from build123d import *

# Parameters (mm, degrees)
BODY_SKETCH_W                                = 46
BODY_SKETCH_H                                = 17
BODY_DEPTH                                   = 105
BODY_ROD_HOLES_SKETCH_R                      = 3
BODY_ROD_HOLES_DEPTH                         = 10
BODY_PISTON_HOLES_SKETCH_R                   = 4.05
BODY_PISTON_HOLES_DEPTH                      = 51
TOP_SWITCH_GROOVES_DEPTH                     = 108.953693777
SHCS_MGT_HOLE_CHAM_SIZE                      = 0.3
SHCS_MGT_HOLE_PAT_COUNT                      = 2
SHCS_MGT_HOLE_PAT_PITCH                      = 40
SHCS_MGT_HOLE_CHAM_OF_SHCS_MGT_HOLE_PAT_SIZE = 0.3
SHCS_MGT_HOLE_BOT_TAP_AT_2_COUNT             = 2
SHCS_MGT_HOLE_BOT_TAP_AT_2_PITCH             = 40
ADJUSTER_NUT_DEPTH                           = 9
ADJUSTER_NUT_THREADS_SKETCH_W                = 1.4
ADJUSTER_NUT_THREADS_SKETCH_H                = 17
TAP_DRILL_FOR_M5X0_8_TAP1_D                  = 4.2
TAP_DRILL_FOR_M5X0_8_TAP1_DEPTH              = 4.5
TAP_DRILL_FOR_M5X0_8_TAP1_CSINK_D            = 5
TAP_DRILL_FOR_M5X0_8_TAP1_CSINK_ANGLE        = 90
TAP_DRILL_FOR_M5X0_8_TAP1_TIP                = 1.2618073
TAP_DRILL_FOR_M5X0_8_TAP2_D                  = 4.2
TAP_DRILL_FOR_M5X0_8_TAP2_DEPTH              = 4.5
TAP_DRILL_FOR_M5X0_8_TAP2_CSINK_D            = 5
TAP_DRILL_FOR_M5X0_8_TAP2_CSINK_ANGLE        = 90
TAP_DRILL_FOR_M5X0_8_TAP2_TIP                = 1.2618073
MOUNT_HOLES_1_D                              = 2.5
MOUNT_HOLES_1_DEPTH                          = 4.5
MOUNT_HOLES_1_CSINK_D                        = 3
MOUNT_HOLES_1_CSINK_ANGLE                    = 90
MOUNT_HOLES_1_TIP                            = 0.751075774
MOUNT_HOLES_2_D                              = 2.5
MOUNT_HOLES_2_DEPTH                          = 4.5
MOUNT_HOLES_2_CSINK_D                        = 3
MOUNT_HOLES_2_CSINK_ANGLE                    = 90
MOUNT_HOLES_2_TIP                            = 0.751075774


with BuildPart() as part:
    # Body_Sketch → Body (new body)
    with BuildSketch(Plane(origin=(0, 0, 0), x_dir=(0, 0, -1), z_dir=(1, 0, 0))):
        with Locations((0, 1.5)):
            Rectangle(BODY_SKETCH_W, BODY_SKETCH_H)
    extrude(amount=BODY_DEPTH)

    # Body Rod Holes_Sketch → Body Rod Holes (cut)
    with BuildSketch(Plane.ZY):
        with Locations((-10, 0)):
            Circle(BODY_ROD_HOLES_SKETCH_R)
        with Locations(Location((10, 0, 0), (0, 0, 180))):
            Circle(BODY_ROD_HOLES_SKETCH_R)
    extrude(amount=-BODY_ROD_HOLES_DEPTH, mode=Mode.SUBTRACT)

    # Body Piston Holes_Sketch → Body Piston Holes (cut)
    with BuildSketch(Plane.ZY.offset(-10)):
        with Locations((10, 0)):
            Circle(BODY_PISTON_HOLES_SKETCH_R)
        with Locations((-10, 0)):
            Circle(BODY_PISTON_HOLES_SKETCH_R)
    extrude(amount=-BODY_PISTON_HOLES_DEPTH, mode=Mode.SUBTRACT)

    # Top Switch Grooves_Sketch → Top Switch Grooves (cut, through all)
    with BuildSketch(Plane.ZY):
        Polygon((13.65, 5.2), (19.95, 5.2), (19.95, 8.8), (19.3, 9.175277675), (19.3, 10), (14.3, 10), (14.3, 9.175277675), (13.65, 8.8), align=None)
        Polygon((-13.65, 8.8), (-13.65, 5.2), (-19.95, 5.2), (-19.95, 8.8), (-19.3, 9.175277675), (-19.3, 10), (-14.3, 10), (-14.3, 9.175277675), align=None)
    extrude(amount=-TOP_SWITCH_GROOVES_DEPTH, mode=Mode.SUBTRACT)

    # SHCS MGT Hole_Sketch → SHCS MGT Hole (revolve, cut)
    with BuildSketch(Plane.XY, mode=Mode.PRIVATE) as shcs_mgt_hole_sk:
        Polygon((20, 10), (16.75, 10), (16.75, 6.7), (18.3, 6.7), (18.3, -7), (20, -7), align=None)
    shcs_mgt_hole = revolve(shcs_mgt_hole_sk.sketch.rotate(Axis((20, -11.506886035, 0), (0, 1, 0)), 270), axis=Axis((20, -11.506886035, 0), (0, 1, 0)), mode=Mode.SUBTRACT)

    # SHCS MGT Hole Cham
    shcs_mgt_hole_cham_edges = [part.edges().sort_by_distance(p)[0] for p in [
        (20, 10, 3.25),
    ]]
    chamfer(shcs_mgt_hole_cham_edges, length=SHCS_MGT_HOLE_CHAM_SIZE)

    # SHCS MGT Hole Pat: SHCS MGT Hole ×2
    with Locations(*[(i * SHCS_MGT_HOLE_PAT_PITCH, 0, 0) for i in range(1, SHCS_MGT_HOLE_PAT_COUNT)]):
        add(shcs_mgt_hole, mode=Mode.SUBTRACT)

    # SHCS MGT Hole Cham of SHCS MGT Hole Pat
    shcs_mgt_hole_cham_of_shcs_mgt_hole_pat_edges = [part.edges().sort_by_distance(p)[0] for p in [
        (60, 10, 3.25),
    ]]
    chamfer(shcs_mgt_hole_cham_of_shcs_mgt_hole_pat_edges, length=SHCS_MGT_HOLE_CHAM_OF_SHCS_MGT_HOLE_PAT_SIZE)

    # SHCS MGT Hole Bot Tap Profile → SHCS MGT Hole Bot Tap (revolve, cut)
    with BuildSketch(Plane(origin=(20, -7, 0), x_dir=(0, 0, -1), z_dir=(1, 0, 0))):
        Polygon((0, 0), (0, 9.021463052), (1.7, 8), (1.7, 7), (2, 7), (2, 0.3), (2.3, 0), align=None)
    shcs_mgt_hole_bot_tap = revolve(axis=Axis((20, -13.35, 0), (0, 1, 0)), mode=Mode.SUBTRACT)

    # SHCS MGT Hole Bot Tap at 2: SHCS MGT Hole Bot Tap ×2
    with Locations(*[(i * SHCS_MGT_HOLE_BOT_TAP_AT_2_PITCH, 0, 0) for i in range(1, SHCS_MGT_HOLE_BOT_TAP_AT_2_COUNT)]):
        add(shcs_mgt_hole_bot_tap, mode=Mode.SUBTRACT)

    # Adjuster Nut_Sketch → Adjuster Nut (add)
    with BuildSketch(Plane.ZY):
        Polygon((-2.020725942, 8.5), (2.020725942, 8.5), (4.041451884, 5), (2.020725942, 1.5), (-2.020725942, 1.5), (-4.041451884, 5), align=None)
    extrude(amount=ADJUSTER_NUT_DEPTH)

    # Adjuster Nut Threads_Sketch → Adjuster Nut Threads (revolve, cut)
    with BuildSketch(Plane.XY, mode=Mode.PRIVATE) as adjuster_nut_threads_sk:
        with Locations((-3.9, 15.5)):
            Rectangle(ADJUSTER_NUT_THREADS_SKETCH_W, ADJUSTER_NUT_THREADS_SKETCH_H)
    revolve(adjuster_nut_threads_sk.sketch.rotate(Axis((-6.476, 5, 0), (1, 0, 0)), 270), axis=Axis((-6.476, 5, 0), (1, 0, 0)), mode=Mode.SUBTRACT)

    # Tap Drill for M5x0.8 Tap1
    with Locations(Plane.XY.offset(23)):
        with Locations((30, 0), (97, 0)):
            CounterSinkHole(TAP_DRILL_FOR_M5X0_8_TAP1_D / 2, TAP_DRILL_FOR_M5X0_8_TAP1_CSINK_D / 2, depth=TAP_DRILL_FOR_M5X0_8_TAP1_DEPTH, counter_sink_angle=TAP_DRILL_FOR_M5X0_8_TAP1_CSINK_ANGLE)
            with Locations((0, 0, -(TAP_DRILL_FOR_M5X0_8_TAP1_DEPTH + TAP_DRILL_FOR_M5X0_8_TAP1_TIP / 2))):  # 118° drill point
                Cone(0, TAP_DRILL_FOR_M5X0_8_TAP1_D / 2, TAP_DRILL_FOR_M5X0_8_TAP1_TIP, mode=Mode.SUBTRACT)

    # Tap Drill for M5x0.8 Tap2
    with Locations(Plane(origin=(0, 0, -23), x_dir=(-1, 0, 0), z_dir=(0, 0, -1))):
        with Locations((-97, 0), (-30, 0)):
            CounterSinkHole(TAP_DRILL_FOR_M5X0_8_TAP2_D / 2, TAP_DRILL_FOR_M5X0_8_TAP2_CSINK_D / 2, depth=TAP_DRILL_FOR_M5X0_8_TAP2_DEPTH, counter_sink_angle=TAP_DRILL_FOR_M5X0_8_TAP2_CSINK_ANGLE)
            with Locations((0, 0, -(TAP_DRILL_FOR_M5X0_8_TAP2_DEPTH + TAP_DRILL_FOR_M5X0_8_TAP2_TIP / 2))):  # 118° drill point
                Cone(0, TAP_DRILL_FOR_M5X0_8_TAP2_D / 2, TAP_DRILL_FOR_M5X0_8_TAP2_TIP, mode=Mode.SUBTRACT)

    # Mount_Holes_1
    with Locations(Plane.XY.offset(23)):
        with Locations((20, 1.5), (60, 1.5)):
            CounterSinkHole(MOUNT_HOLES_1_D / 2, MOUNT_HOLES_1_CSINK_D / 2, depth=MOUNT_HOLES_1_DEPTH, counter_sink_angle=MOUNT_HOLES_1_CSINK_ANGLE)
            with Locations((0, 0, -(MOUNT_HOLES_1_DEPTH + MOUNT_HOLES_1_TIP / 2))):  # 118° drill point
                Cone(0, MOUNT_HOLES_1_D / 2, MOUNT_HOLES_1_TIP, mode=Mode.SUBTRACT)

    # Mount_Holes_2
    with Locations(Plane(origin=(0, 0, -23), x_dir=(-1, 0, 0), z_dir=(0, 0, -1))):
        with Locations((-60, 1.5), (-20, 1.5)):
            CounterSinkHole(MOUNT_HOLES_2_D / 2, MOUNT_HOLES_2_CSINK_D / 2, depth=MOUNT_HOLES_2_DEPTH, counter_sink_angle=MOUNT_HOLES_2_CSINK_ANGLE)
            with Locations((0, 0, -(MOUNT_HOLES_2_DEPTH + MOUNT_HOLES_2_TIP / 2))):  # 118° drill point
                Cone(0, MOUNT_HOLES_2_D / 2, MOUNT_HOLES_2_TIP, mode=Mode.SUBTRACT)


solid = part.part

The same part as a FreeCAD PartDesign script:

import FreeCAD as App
import Part
import Sketcher

V = App.Vector
Q = App.Units.Quantity


def edges_at(feature, points):
    """Names of the edges that pass closest to the given points."""
    edges = feature.Shape.Edges
    near = lambda p: min(range(len(edges)), key=lambda i: edges[i].distToShape(Part.Vertex(*p))[0])
    return sorted({f"Edge{near(p) + 1}" for p in points})

doc = App.newDocument("Part")
body = doc.addObject("PartDesign::Body", "Body")

# Sketch on YZ plane
sketch1 = body.newObject("Sketcher::SketchObject", "Sketch")
sketch1.AttachmentSupport = (doc.getObject("YZ_Plane"), [""])
sketch1.MapMode = "FlatFace"
sketch1.addGeometry([
    Part.LineSegment(V(10, 23, 0), V(-7, 23, 0)),
    Part.LineSegment(V(-7, 23, 0), V(-7, -23, 0)),
    Part.LineSegment(V(-7, -23, 0), V(10, -23, 0)),
    Part.LineSegment(V(10, -23, 0), V(10, 23, 0)),
], False)
sketch1.addConstraint([
    Sketcher.Constraint("Coincident", 0, 2, 1, 1),
    Sketcher.Constraint("Coincident", 1, 2, 2, 1),
    Sketcher.Constraint("Coincident", 2, 2, 3, 1),
    Sketcher.Constraint("Coincident", 3, 2, 0, 1),
    Sketcher.Constraint("Horizontal", 0),
    Sketcher.Constraint("Vertical", 1),
    Sketcher.Constraint("Horizontal", 2),
    Sketcher.Constraint("Vertical", 3),
    Sketcher.Constraint("DistanceX", 0, 2, 0, 1, 17.0),
    Sketcher.Constraint("DistanceY", 1, 2, 1, 1, 46.0),
    Sketcher.Constraint("DistanceX", 0, 2, -1, 1, 7.0),
    Sketcher.Constraint("DistanceY", -1, 1, 0, 2, 23.0),
])
pad1 = body.newObject("PartDesign::Pad", "Pad")
pad1.Profile = sketch1
pad1.Length = 105

# Sketch on YZ plane
sketch2 = body.newObject("Sketcher::SketchObject", "Sketch001")
sketch2.AttachmentSupport = (doc.getObject("YZ_Plane"), [""])
sketch2.MapMode = "FlatFace"
sketch2.addGeometry([
    Part.Circle(V(0, -10, 0), V(0, 0, 1), 3),
    Part.Circle(V(0, 10, 0), V(0, 0, 1), 3),
], False)
sketch2.addConstraint([
    Sketcher.Constraint("Equal", 0, 1),
    Sketcher.Constraint("Symmetric", 0, 3, 1, 3, -1, 1),
    Sketcher.Constraint("PointOnObject", 0, 3, -2),
    Sketcher.Constraint("Diameter", 0, 6.0),
    Sketcher.Constraint("DistanceY", 0, 3, -1, 1, 10.0),
])
pocket1 = body.newObject("PartDesign::Pocket", "Pocket")
pocket1.Profile = sketch2
pocket1.Length = 10
pocket1.Reversed = True

# Sketch on YZ plane
sketch3 = body.newObject("Sketcher::SketchObject", "Sketch002")
sketch3.AttachmentSupport = (doc.getObject("YZ_Plane"), [""])
sketch3.MapMode = "FlatFace"
sketch3.AttachmentOffset = App.Placement(V(0, 0, 10), App.Rotation())
sketch3.addGeometry([
    Part.Circle(V(0, 10, 0), V(0, 0, 1), 4),
    Part.Circle(V(0, -10, 0), V(0, 0, 1), 4),
], False)
sketch3.addConstraint([
    Sketcher.Constraint("Equal", 0, 1),
    Sketcher.Constraint("Symmetric", 0, 3, 1, 3, -1, 1),
    Sketcher.Constraint("PointOnObject", 0, 3, -2),
    Sketcher.Constraint("Diameter", 0, 8.1),
    Sketcher.Constraint("DistanceY", -1, 1, 0, 3, 10.0),
])
pocket2 = body.newObject("PartDesign::Pocket", "Pocket001")
pocket2.Profile = sketch3
pocket2.Length = 51
pocket2.Reversed = True

# Sketch on YZ plane
sketch4 = body.newObject("Sketcher::SketchObject", "Sketch003")
sketch4.AttachmentSupport = (doc.getObject("YZ_Plane"), [""])
sketch4.MapMode = "FlatFace"
sketch4.addGeometry([
    Part.LineSegment(V(5.2, 13.7, 0), V(5.2, 19.9, 0)),  # 0
    Part.LineSegment(V(5.2, 19.9, 0), V(8.8, 19.9, 0)),  # 1
    Part.LineSegment(V(8.8, 19.9, 0), V(9.2, 19.3, 0)),  # 2
    Part.LineSegment(V(9.2, 19.3, 0), V(10, 19.3, 0)),  # 3
    Part.LineSegment(V(10, 19.3, 0), V(10, 14.3, 0)),  # 4
    Part.LineSegment(V(10, 14.3, 0), V(9.2, 14.3, 0)),  # 5
    Part.LineSegment(V(9.2, 14.3, 0), V(8.8, 13.7, 0)),  # 6
    Part.LineSegment(V(8.8, 13.7, 0), V(5.2, 13.7, 0)),  # 7
    Part.LineSegment(V(5.2, -13.7, 0), V(8.8, -13.7, 0)),  # 8
    Part.LineSegment(V(8.8, -13.7, 0), V(9.2, -14.3, 0)),  # 9
    Part.LineSegment(V(9.2, -14.3, 0), V(10, -14.3, 0)),  # 10
    Part.LineSegment(V(10, -14.3, 0), V(10, -19.3, 0)),  # 11
    Part.LineSegment(V(10, -19.3, 0), V(9.2, -19.3, 0)),  # 12
    Part.LineSegment(V(9.2, -19.3, 0), V(8.8, -19.9, 0)),  # 13
    Part.LineSegment(V(8.8, -19.9, 0), V(5.2, -19.9, 0)),  # 14
    Part.LineSegment(V(5.2, -19.9, 0), V(5.2, -13.7, 0)),  # 15
], False)
sketch4.addConstraint([
    Sketcher.Constraint("Coincident", 0, 2, 1, 1),
    Sketcher.Constraint("Coincident", 1, 2, 2, 1),
    Sketcher.Constraint("Coincident", 2, 2, 3, 1),
    Sketcher.Constraint("Coincident", 3, 2, 4, 1),
    Sketcher.Constraint("Coincident", 4, 2, 5, 1),
    Sketcher.Constraint("Coincident", 5, 2, 6, 1),
    Sketcher.Constraint("Coincident", 6, 2, 7, 1),
    Sketcher.Constraint("Coincident", 7, 2, 0, 1),
    Sketcher.Constraint("Coincident", 8, 2, 9, 1),
    Sketcher.Constraint("Coincident", 9, 2, 10, 1),
    Sketcher.Constraint("Coincident", 10, 2, 11, 1),
    Sketcher.Constraint("Coincident", 11, 2, 12, 1),
    Sketcher.Constraint("Coincident", 12, 2, 13, 1),
    Sketcher.Constraint("Coincident", 13, 2, 14, 1),
    Sketcher.Constraint("Coincident", 14, 2, 15, 1),
    Sketcher.Constraint("Coincident", 15, 2, 8, 1),
    Sketcher.Constraint("Vertical", 0),
    Sketcher.Constraint("Horizontal", 1),
    Sketcher.Constraint("Horizontal", 3),
    Sketcher.Constraint("Vertical", 4),
    Sketcher.Constraint("Horizontal", 5),
    Sketcher.Constraint("Horizontal", 7),
    Sketcher.Constraint("Horizontal", 8),
    Sketcher.Constraint("Horizontal", 10),
    Sketcher.Constraint("Vertical", 11),
    Sketcher.Constraint("Horizontal", 12),
    Sketcher.Constraint("Horizontal", 14),
    Sketcher.Constraint("Vertical", 15),
    Sketcher.Constraint("Symmetric", 6, 2, 8, 2, -1),
    Sketcher.Constraint("Symmetric", 5, 2, 9, 2, -1),
    Sketcher.Constraint("Symmetric", 3, 2, 11, 2, -1),
    Sketcher.Constraint("Symmetric", 1, 2, 13, 2, -1),
    Sketcher.Constraint("Parallel", 2, 9),
    Sketcher.Constraint("Parallel", 6, 13),
    Sketcher.Constraint("Vertical", 2, 2, 5, 2),
    Sketcher.Constraint("Vertical", 1, 2, 6, 2),
    Sketcher.Constraint("Vertical", 7, 2, 14, 2),
    Sketcher.Constraint("DistanceY", 4, 2, 4, 1, 5.0),
    Sketcher.Constraint("Angle", 2, Q("-60 deg")),
    Sketcher.Constraint("DistanceX", 1, 1, 1, 2, 3.6),
    Sketcher.Constraint("DistanceY", 0, 1, 0, 2, 6.3),
    Sketcher.Constraint("DistanceX", -1, 1, 3, 2, 10.0),
    Sketcher.Constraint("DistanceX", -1, 1, 0, 2, 5.2),
    Sketcher.Constraint("DistanceY", -1, 1, 2, 2, 19.3),
])
pocket3 = body.newObject("PartDesign::Pocket", "Pocket002")
pocket3.Profile = sketch4
pocket3.Type = "ThroughAll"
pocket3.Reversed = True

# Sketch on XY plane
sketch5 = body.newObject("Sketcher::SketchObject", "Sketch004")
sketch5.AttachmentSupport = (doc.getObject("XY_Plane"), [""])
sketch5.MapMode = "FlatFace"
sketch5.addGeometry([
    Part.LineSegment(V(20, 10, 0), V(16.8, 10, 0)),  # 0
    Part.LineSegment(V(16.8, 10, 0), V(16.8, 6.7, 0)),  # 1
    Part.LineSegment(V(16.8, 6.7, 0), V(18.3, 6.7, 0)),  # 2
    Part.LineSegment(V(18.3, 6.7, 0), V(18.3, -7, 0)),  # 3
    Part.LineSegment(V(18.3, -7, 0), V(20, -7, 0)),  # 4
    Part.LineSegment(V(20, -7, 0), V(20, 10, 0)),  # 5
], False)
sketch5.addGeometry(Part.LineSegment(V(20, -7, 0), V(20, 10, 0)), True)  # axis
sketch5.addConstraint([
    Sketcher.Constraint("Coincident", 0, 2, 1, 1),
    Sketcher.Constraint("Coincident", 1, 2, 2, 1),
    Sketcher.Constraint("Coincident", 2, 2, 3, 1),
    Sketcher.Constraint("Coincident", 3, 2, 4, 1),
    Sketcher.Constraint("Coincident", 4, 2, 5, 1),
    Sketcher.Constraint("Coincident", 5, 2, 0, 1),
    Sketcher.Constraint("Horizontal", 0),
    Sketcher.Constraint("Vertical", 1),
    Sketcher.Constraint("Horizontal", 2),
    Sketcher.Constraint("Vertical", 3),
    Sketcher.Constraint("Horizontal", 4),
    Sketcher.Constraint("Vertical", 5),
    Sketcher.Constraint("Vertical", 6),
    Sketcher.Constraint("Coincident", 6, 1, 4, 2),
    Sketcher.Constraint("Horizontal", 0, 2, 6, 2),
    Sketcher.Constraint("DistanceY", 5, 1, 5, 2, 17.0),
    Sketcher.Constraint("DistanceX", 4, 1, 4, 2, 1.7),
    Sketcher.Constraint("DistanceY", 1, 2, 1, 1, 3.3),
    Sketcher.Constraint("DistanceY", -1, 1, 0, 2, 10.0),
    Sketcher.Constraint("DistanceX", -1, 1, 4, 2, 20.0),
    Sketcher.Constraint("DistanceX", 0, 2, 0, 1, 3.25),
])
groove = body.newObject("PartDesign::Groove", "Groove")
groove.Profile = sketch5
groove.ReferenceAxis = (sketch5, ["Axis0"])
groove.Angle = 360
doc.recompute()

chamfer = body.newObject("PartDesign::Chamfer", "Chamfer")
chamfer.Base = (groove, edges_at(groove, [(20, 10, 3.25)]))
chamfer.Size = 0.3
doc.recompute()

linearpattern = body.newObject("PartDesign::LinearPattern", "LinearPattern")
linearpattern.Originals = [groove]
linearpattern.Direction = (doc.getObject("X_Axis"), [""])
linearpattern.Mode = "offset"
linearpattern.Offset = 40
linearpattern.Occurrences = 2
body.Tip = linearpattern
doc.recompute()

chamfer2 = body.newObject("PartDesign::Chamfer", "Chamfer001")
chamfer2.Base = (linearpattern, edges_at(linearpattern, [(60, 10, 3.25)]))
chamfer2.Size = 0.3

# Sketch on YZ plane
sketch6 = body.newObject("Sketcher::SketchObject", "Sketch005")
sketch6.AttachmentSupport = (doc.getObject("YZ_Plane"), [""])
sketch6.MapMode = "FlatFace"
sketch6.AttachmentOffset = App.Placement(V(0, 0, 20), App.Rotation())
sketch6.addGeometry([
    Part.LineSegment(V(2.02, 0, 0), V(-7, 0, 0)),  # 0
    Part.LineSegment(V(-7, 0, 0), V(-7, -2.3, 0)),  # 1
    Part.LineSegment(V(-7, -2.3, 0), V(-6.7, -2, 0)),  # 2
    Part.LineSegment(V(-6.7, -2, 0), V(0, -2, 0)),  # 3
    Part.LineSegment(V(0, -2, 0), V(0, -1.7, 0)),  # 4
    Part.LineSegment(V(0, -1.7, 0), V(1, -1.7, 0)),  # 5
    Part.LineSegment(V(1, -1.7, 0), V(2.02, 0, 0)),  # 6
], False)
sketch6.addConstraint([
    Sketcher.Constraint("Coincident", 0, 2, 1, 1),
    Sketcher.Constraint("Coincident", 1, 2, 2, 1),
    Sketcher.Constraint("Coincident", 2, 2, 3, 1),
    Sketcher.Constraint("Coincident", 3, 2, 4, 1),
    Sketcher.Constraint("Coincident", 4, 2, 5, 1),
    Sketcher.Constraint("Coincident", 5, 2, 6, 1),
    Sketcher.Constraint("Coincident", 6, 2, 0, 1),
    Sketcher.Constraint("Horizontal", 0),
    Sketcher.Constraint("Vertical", 1),
    Sketcher.Constraint("Horizontal", 3),
    Sketcher.Constraint("Vertical", 4),
    Sketcher.Constraint("Horizontal", 5),
    Sketcher.Constraint("PointOnObject", 0, 2, -1),
    Sketcher.Constraint("PointOnObject", 3, 2, -2),
    Sketcher.Constraint("DistanceX", 5, 1, 5, 2, 1.0),
    Sketcher.Constraint("Angle", 2, Q("45 deg")),
    Sketcher.Constraint("Angle", 6, Q("59 deg")),
    Sketcher.Constraint("DistanceX", 3, 1, 3, 2, 6.7),
    Sketcher.Constraint("DistanceY", 1, 2, 1, 1, 2.3),
    Sketcher.Constraint("DistanceY", 4, 1, 4, 2, 0.3),
    Sketcher.Constraint("DistanceX", 0, 2, -1, 1, 7.0),
])
groove2 = body.newObject("PartDesign::Groove", "Groove001")
groove2.Profile = sketch6
groove2.ReferenceAxis = (sketch6, ["H_Axis"])
groove2.Angle = 360
doc.recompute()

linearpattern2 = body.newObject("PartDesign::LinearPattern", "LinearPattern001")
linearpattern2.Originals = [groove2]
linearpattern2.Direction = (doc.getObject("X_Axis"), [""])
linearpattern2.Mode = "offset"
linearpattern2.Offset = 40
linearpattern2.Occurrences = 2
body.Tip = linearpattern2

# Sketch on YZ plane
sketch7 = body.newObject("Sketcher::SketchObject", "Sketch006")
sketch7.AttachmentSupport = (doc.getObject("YZ_Plane"), [""])
sketch7.MapMode = "FlatFace"
sketch7.addGeometry([
    Part.LineSegment(V(8.5, 2, 0), V(8.5, -2, 0)),  # 0
    Part.LineSegment(V(8.5, -2, 0), V(5, -4, 0)),  # 1
    Part.LineSegment(V(5, -4, 0), V(1.5, -2, 0)),  # 2
    Part.LineSegment(V(1.5, -2, 0), V(1.5, 2, 0)),  # 3
    Part.LineSegment(V(1.5, 2, 0), V(5, 4, 0)),  # 4
    Part.LineSegment(V(5, 4, 0), V(8.5, 2, 0)),  # 5
], False)
sketch7.addConstraint([
    Sketcher.Constraint("Coincident", 0, 2, 1, 1),
    Sketcher.Constraint("Coincident", 1, 2, 2, 1),
    Sketcher.Constraint("Coincident", 2, 2, 3, 1),
    Sketcher.Constraint("Coincident", 3, 2, 4, 1),
    Sketcher.Constraint("Coincident", 4, 2, 5, 1),
    Sketcher.Constraint("Coincident", 5, 2, 0, 1),
    Sketcher.Constraint("Vertical", 0),
    Sketcher.Constraint("Vertical", 3),
    Sketcher.Constraint("Symmetric", 1, 2, 4, 2, -1),
    Sketcher.Constraint("Parallel", 1, 4),
    Sketcher.Constraint("Parallel", 2, 5),
    Sketcher.Constraint("Horizontal", 0, 2, 2, 2),
    Sketcher.Constraint("Horizontal", 3, 2, 5, 2),
    Sketcher.Constraint("Angle", 1, Q("-150 deg")),
    Sketcher.Constraint("DistanceX", -1, 1, 1, 2, 5.0),
    Sketcher.Constraint("DistanceX", 2, 2, 0, 2, 7.0),
    Sketcher.Constraint("DistanceY", 0, 2, 0, 1, 4.041452),
])
pad2 = body.newObject("PartDesign::Pad", "Pad001")
pad2.Profile = sketch7
pad2.Length = 9
pad2.Reversed = True

# Sketch on XY plane
sketch8 = body.newObject("Sketcher::SketchObject", "Sketch007")
sketch8.AttachmentSupport = (doc.getObject("XY_Plane"), [""])
sketch8.MapMode = "FlatFace"
sketch8.addGeometry([
    Part.LineSegment(V(-4.6, 24, 0), V(-4.6, 7, 0)),
    Part.LineSegment(V(-4.6, 7, 0), V(-3.2, 7, 0)),
    Part.LineSegment(V(-3.2, 7, 0), V(-3.2, 24, 0)),
    Part.LineSegment(V(-3.2, 24, 0), V(-4.6, 24, 0)),
], False)
sketch8.addGeometry(Part.LineSegment(V(-4.6, 5, 0), V(-3.2, 5, 0)), True)  # axis
sketch8.addConstraint([
    Sketcher.Constraint("Coincident", 0, 2, 1, 1),
    Sketcher.Constraint("Coincident", 1, 2, 2, 1),
    Sketcher.Constraint("Coincident", 2, 2, 3, 1),
    Sketcher.Constraint("Coincident", 3, 2, 0, 1),
    Sketcher.Constraint("Vertical", 0),
    Sketcher.Constraint("Horizontal", 1),
    Sketcher.Constraint("Vertical", 2),
    Sketcher.Constraint("Horizontal", 3),
    Sketcher.Constraint("Horizontal", 4),
    Sketcher.Constraint("Vertical", 3, 2, 4, 1),
    Sketcher.Constraint("Vertical", 2, 2, 4, 2),
    Sketcher.Constraint("DistanceY", 0, 2, 0, 1, 17.0),
    Sketcher.Constraint("DistanceX", 1, 1, 1, 2, 1.4),
    Sketcher.Constraint("DistanceY", -1, 1, 0, 2, 7.0),
    Sketcher.Constraint("DistanceY", -1, 1, 4, 1, 5.0),
    Sketcher.Constraint("DistanceX", 0, 2, -1, 1, 4.6),
])
groove3 = body.newObject("PartDesign::Groove", "Groove002")
groove3.Profile = sketch8
groove3.ReferenceAxis = (sketch8, ["Axis0"])
groove3.Angle = 360

# Sketch on XY plane
sketch9 = body.newObject("Sketcher::SketchObject", "Sketch008")
sketch9.AttachmentSupport = (doc.getObject("XY_Plane"), [""])
sketch9.MapMode = "FlatFace"
sketch9.AttachmentOffset = App.Placement(V(0, 0, 23), App.Rotation())
sketch9.addGeometry([
    Part.Circle(V(30, 0, 0), V(0, 0, 1), 2.1),
    Part.Circle(V(97, 0, 0), V(0, 0, 1), 2.1),
], False)
sketch9.addConstraint([
    Sketcher.Constraint("Equal", 0, 1),
    Sketcher.Constraint("PointOnObject", 0, 3, -1),
    Sketcher.Constraint("PointOnObject", 1, 3, -1),
    Sketcher.Constraint("Diameter", 0, 4.2),
    Sketcher.Constraint("DistanceX", -1, 1, 0, 3, 30.0),
    Sketcher.Constraint("DistanceX", -1, 1, 1, 3, 97.0),
])
doc.recompute()
hole = body.newObject("PartDesign::Hole", "Hole")
hole.Profile = sketch9
hole.ThreadType = "None"
hole.Diameter = 4.2
hole.DepthType = "Dimension"
hole.Depth = 4.5
hole.DrillPoint = "Angled"
hole.DrillPointAngle = 118
hole.HoleCutType = "Countersink"
hole.HoleCutDiameter = 5
hole.HoleCutCountersinkAngle = 90

# Sketch on XY plane
sketch10 = body.newObject("Sketcher::SketchObject", "Sketch009")
sketch10.AttachmentSupport = (doc.getObject("XY_Plane"), [""])
sketch10.MapMode = "FlatFace"
sketch10.AttachmentOffset = App.Placement(V(0, 0, -23), App.Rotation())
sketch10.addGeometry([
    Part.Circle(V(97, 0, 0), V(0, 0, 1), 2.1),
    Part.Circle(V(30, 0, 0), V(0, 0, 1), 2.1),
], False)
sketch10.addConstraint([
    Sketcher.Constraint("Equal", 0, 1),
    Sketcher.Constraint("PointOnObject", 0, 3, -1),
    Sketcher.Constraint("PointOnObject", 1, 3, -1),
    Sketcher.Constraint("Diameter", 0, 4.2),
    Sketcher.Constraint("DistanceX", -1, 1, 0, 3, 97.0),
    Sketcher.Constraint("DistanceX", -1, 1, 1, 3, 30.0),
])
doc.recompute()
hole2 = body.newObject("PartDesign::Hole", "Hole001")
hole2.Profile = sketch10
hole2.ThreadType = "None"
hole2.Diameter = 4.2
hole2.DepthType = "Dimension"
hole2.Depth = 4.5
hole2.DrillPoint = "Angled"
hole2.DrillPointAngle = 118
hole2.HoleCutType = "Countersink"
hole2.HoleCutDiameter = 5
hole2.HoleCutCountersinkAngle = 90
hole2.Reversed = True

# Sketch on XY plane
sketch11 = body.newObject("Sketcher::SketchObject", "Sketch010")
sketch11.AttachmentSupport = (doc.getObject("XY_Plane"), [""])
sketch11.MapMode = "FlatFace"
sketch11.AttachmentOffset = App.Placement(V(0, 0, 23), App.Rotation())
sketch11.addGeometry([
    Part.Circle(V(20, 1.5, 0), V(0, 0, 1), 1.2),
    Part.Circle(V(60, 1.5, 0), V(0, 0, 1), 1.2),
], False)
sketch11.addConstraint([
    Sketcher.Constraint("Equal", 0, 1),
    Sketcher.Constraint("Horizontal", 0, 3, 1, 3),
    Sketcher.Constraint("Diameter", 0, 2.5),
    Sketcher.Constraint("DistanceX", -1, 1, 0, 3, 20.0),
    Sketcher.Constraint("DistanceX", -1, 1, 1, 3, 60.0),
    Sketcher.Constraint("DistanceY", -1, 1, 0, 3, 1.5),
])
doc.recompute()
hole3 = body.newObject("PartDesign::Hole", "Hole002")
hole3.Profile = sketch11
hole3.ThreadType = "None"
hole3.Diameter = 2.5
hole3.DepthType = "Dimension"
hole3.Depth = 4.5
hole3.DrillPoint = "Angled"
hole3.DrillPointAngle = 118
hole3.HoleCutType = "Countersink"
hole3.HoleCutDiameter = 3
hole3.HoleCutCountersinkAngle = 90

# Sketch on XY plane
sketch12 = body.newObject("Sketcher::SketchObject", "Sketch011")
sketch12.AttachmentSupport = (doc.getObject("XY_Plane"), [""])
sketch12.MapMode = "FlatFace"
sketch12.AttachmentOffset = App.Placement(V(0, 0, -23), App.Rotation())
sketch12.addGeometry([
    Part.Circle(V(60, 1.5, 0), V(0, 0, 1), 1.2),
    Part.Circle(V(20, 1.5, 0), V(0, 0, 1), 1.2),
], False)
sketch12.addConstraint([
    Sketcher.Constraint("Equal", 0, 1),
    Sketcher.Constraint("Horizontal", 0, 3, 1, 3),
    Sketcher.Constraint("Diameter", 0, 2.5),
    Sketcher.Constraint("DistanceX", -1, 1, 0, 3, 60.0),
    Sketcher.Constraint("DistanceX", -1, 1, 1, 3, 20.0),
    Sketcher.Constraint("DistanceY", -1, 1, 0, 3, 1.5),
])
doc.recompute()
hole4 = body.newObject("PartDesign::Hole", "Hole003")
hole4.Profile = sketch12
hole4.ThreadType = "None"
hole4.Diameter = 2.5
hole4.DepthType = "Dimension"
hole4.Depth = 4.5
hole4.DrillPoint = "Angled"
hole4.DrillPointAngle = 118
hole4.HoleCutType = "Countersink"
hole4.HoleCutDiameter = 3
hole4.HoleCutCountersinkAngle = 90
hole4.Reversed = True

doc.recompute()
